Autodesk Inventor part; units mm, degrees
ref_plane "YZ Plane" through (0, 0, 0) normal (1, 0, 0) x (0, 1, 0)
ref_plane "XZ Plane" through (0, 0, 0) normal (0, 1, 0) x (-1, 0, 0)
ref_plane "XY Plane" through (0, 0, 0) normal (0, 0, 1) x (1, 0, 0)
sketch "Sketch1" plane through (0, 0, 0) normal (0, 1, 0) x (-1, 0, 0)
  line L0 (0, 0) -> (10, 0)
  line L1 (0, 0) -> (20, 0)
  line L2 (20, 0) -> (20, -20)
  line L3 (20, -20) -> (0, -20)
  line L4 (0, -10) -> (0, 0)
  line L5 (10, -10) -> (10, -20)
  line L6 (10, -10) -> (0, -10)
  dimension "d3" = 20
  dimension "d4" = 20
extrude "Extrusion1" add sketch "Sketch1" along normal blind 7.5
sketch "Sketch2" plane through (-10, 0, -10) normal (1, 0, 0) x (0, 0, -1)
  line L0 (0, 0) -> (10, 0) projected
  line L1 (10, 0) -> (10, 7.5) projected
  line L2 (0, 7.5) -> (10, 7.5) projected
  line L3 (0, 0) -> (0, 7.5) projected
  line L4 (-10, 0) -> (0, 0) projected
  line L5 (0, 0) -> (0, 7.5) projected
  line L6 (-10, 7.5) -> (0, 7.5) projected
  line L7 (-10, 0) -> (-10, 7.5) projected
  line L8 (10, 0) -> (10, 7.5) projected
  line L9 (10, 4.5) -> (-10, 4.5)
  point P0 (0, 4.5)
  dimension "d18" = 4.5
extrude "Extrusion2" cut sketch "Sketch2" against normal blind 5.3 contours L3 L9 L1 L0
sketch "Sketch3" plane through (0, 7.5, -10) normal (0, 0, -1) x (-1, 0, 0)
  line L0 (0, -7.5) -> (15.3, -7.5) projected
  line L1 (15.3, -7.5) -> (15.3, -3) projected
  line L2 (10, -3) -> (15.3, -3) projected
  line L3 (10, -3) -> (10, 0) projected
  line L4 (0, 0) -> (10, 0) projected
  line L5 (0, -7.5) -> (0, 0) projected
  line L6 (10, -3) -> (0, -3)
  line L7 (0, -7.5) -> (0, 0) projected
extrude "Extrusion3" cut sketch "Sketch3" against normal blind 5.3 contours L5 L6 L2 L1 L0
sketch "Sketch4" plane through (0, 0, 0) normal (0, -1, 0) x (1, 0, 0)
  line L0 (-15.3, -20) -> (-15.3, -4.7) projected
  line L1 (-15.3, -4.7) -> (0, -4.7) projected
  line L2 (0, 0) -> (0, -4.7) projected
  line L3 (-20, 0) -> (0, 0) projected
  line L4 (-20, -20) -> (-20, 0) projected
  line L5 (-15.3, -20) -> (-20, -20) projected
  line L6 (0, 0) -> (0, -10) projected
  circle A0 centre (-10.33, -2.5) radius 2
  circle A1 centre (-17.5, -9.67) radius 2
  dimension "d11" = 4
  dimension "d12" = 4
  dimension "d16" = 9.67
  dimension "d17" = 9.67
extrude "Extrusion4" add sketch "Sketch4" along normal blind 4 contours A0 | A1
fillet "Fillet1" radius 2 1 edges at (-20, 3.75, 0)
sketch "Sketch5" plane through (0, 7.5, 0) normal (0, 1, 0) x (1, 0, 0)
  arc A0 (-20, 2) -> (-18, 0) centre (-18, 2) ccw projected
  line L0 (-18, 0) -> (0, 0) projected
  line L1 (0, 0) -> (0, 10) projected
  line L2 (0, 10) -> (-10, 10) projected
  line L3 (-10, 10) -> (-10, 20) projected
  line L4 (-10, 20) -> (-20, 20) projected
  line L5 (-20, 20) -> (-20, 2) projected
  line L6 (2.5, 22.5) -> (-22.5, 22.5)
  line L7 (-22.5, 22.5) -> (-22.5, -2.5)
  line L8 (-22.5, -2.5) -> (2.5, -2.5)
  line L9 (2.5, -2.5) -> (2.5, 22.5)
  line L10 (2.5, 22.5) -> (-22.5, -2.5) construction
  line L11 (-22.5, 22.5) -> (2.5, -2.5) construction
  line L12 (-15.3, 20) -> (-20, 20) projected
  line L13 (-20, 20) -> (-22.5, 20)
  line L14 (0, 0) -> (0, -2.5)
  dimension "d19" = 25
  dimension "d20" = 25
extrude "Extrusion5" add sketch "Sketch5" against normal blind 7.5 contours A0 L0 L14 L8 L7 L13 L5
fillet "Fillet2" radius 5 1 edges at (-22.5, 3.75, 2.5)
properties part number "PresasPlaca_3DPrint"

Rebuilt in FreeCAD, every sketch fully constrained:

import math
import FreeCAD as App
import Part
import Sketcher

V = App.Vector


def edges_at(feature, points):
    """Names of the edges that pass closest to the given points."""
    edges = feature.Shape.Edges
    near = lambda p: min(range(len(edges)), key=lambda i: edges[i].distToShape(Part.Vertex(*p))[0])
    return sorted({f"Edge{near(p) + 1}" for p in points})

doc = App.newDocument("Part")
params = doc.addObject("Spreadsheet::Sheet", "Params")
for row, (alias, value) in enumerate([
    ("sketch1_width", "20 mm"),
    ("pad1_length", "7.5 mm"),
    ("sketch2_width", "4.5 mm"),
    ("sketch2_height", "10 mm"),
    ("pocket1_length", "5.3 mm"),
    ("sketch3_width", "15.3 mm"),
    ("sketch3_height", "4.5 mm"),
    ("pocket2_length", "5.3 mm"),
    ("sketch4_diameter", "4 mm"),
    ("pad2_length", "4 mm"),
    ("fillet_radius", "2 mm"),
    ("sketch5_radius", "2 mm"),
    ("sketch5_width", "18 mm"),
    ("sketch5_width2", "2.5 mm"),
    ("pad3_length", "7.5 mm"),
    ("fillet2_radius", "5 mm"),
], start=1):
    params.set(f"A{row}", alias)
    params.set(f"B{row}", "=" + value)
    params.setAlias(f"B{row}", alias)

body = doc.addObject("PartDesign::Body", "Body")

sketch1 = body.newObject("Sketcher::SketchObject", "Sketch")
sketch1.AttachmentSupport = (doc.getObject("XZ_Plane"), [""])
sketch1.MapMode = "FlatFace"
sketch1.addGeometry([
    Part.LineSegment(V(-20, 0, 0), V(0, 0, 0)),
    Part.LineSegment(V(0, 0, 0), V(0, -10, 0)),
    Part.LineSegment(V(0, -10, 0), V(-10, -10, 0)),
    Part.LineSegment(V(-10, -10, 0), V(-10, -20, 0)),
    Part.LineSegment(V(-10, -20, 0), V(-20, -20, 0)),
    Part.LineSegment(V(-20, -20, 0), V(-20, 0, 0)),
], False)
sketch1.addConstraint([
    Sketcher.Constraint("Coincident", 0, 2, 1, 1),
    Sketcher.Constraint("Coincident", 1, 2, 2, 1),
    Sketcher.Constraint("Coincident", 2, 2, 3, 1),
    Sketcher.Constraint("Coincident", 3, 2, 4, 1),
    Sketcher.Constraint("Coincident", 4, 2, 5, 1),
    Sketcher.Constraint("Coincident", 5, 2, 0, 1),
    Sketcher.Constraint("Horizontal", 0),
    Sketcher.Constraint("Vertical", 1),
    Sketcher.Constraint("Horizontal", 2),
    Sketcher.Constraint("Vertical", 3),
    Sketcher.Constraint("Horizontal", 4),
    Sketcher.Constraint("Vertical", 5),
    Sketcher.Constraint("Coincident", 0, 2, -1, 1),
    Sketcher.Constraint("Equal", 2, 4),
    Sketcher.Constraint("Equal", 4, 1),
    Sketcher.Constraint("Equal", 1, 3),
    Sketcher.Constraint("DistanceX", 0, 1, 0, 2, 20.0),
])
sketch1.setExpression("Constraints[16]", "Params.sketch1_width")
pad1 = body.newObject("PartDesign::Pad", "Pad")
pad1.Profile = sketch1
pad1.setExpression("Length", "Params.pad1_length")
pad1.Reversed = True

sketch2 = body.newObject("Sketcher::SketchObject", "Sketch001")
sketch2.AttachmentSupport = (doc.getObject("YZ_Plane"), [""])
sketch2.MapMode = "FlatFace"
sketch2.AttachmentOffset = App.Placement(V(0, 0, -10), App.Rotation())
sketch2.addGeometry([
    Part.LineSegment(V(4.5, -10, 0), V(0, -10, 0)),
    Part.LineSegment(V(0, -10, 0), V(0, -20, 0)),
    Part.LineSegment(V(0, -20, 0), V(4.5, -20, 0)),
    Part.LineSegment(V(4.5, -20, 0), V(4.5, -10, 0)),
], False)
sketch2.addConstraint([
    Sketcher.Constraint("Coincident", 0, 2, 1, 1),
    Sketcher.Constraint("Coincident", 1, 2, 2, 1),
    Sketcher.Constraint("Coincident", 2, 2, 3, 1),
    Sketcher.Constraint("Coincident", 3, 2, 0, 1),
    Sketcher.Constraint("Horizontal", 0),
    Sketcher.Constraint("Vertical", 1),
    Sketcher.Constraint("Horizontal", 2),
    Sketcher.Constraint("Vertical", 3),
    Sketcher.Constraint("PointOnObject", 0, 2, -2),
    Sketcher.Constraint("DistanceX", 0, 2, 0, 1, 4.5),
    Sketcher.Constraint("DistanceY", 1, 2, 1, 1, 10.0),
    Sketcher.Constraint("DistanceY", 0, 2, -1, 1, 10.0),
])
sketch2.setExpression("Constraints[9]", "Params.sketch2_width")
sketch2.setExpression("Constraints[10]", "Params.sketch2_height")
pocket1 = body.newObject("PartDesign::Pocket", "Pocket")
pocket1.Profile = sketch2
pocket1.setExpression("Length", "Params.pocket1_length")

sketch3 = body.newObject("Sketcher::SketchObject", "Sketch002")
sketch3.AttachmentSupport = (doc.getObject("XY_Plane"), [""])
sketch3.MapMode = "FlatFace"
sketch3.AttachmentOffset = App.Placement(V(0, 0, -10), App.Rotation())
sketch3.addGeometry([
    Part.LineSegment(V(0, 4.5, 0), V(0, 0, 0)),
    Part.LineSegment(V(0, 0, 0), V(-15.3, 0, 0)),
    Part.LineSegment(V(-15.3, 0, 0), V(-15.3, 4.5, 0)),
    Part.LineSegment(V(-15.3, 4.5, 0), V(0, 4.5, 0)),
], False)
sketch3.addConstraint([
    Sketcher.Constraint("Coincident", 0, 2, 1, 1),
    Sketcher.Constraint("Coincident", 1, 2, 2, 1),
    Sketcher.Constraint("Coincident", 2, 2, 3, 1),
    Sketcher.Constraint("Coincident", 3, 2, 0, 1),
    Sketcher.Constraint("Vertical", 0),
    Sketcher.Constraint("Horizontal", 1),
    Sketcher.Constraint("Vertical", 2),
    Sketcher.Constraint("Horizontal", 3),
    Sketcher.Constraint("Coincident", 0, 2, -1, 1),
    Sketcher.Constraint("DistanceX", 1, 2, 1, 1, 15.3),
    Sketcher.Constraint("DistanceY", 0, 2, 0, 1, 4.5),
])
sketch3.setExpression("Constraints[9]", "Params.sketch3_width")
sketch3.setExpression("Constraints[10]", "Params.sketch3_height")
pocket2 = body.newObject("PartDesign::Pocket", "Pocket001")
pocket2.Profile = sketch3
pocket2.setExpression("Length", "Params.pocket2_length")
pocket2.Reversed = True

sketch4 = body.newObject("Sketcher::SketchObject", "Sketch003")
sketch4.AttachmentSupport = (doc.getObject("XZ_Plane"), [""])
sketch4.MapMode = "FlatFace"
sketch4.addGeometry([
    Part.Circle(V(-10.3, -2.5, 0), V(0, 0, 1), 2),
    Part.Circle(V(-17.5, -9.7, 0), V(0, 0, 1), 2),
], False)
sketch4.addConstraint([
    Sketcher.Constraint("Equal", 0, 1),
    Sketcher.Constraint("Diameter", 0, 4.0),
    Sketcher.Constraint("DistanceY", 1, 3, -1, 1, 9.67),
    Sketcher.Constraint("DistanceY", 0, 3, -1, 1, 2.5),
    Sketcher.Constraint("DistanceX", 1, 3, -1, 1, 17.5),
    Sketcher.Constraint("DistanceX", 0, 3, -1, 1, 10.33),
])
sketch4.setExpression("Constraints[1]", "Params.sketch4_diameter")
pad2 = body.newObject("PartDesign::Pad", "Pad001")
pad2.Profile = sketch4
pad2.setExpression("Length", "Params.pad2_length")
doc.recompute()

fillet = body.newObject("PartDesign::Fillet", "Fillet")
fillet.Base = (pad2, edges_at(pad2, [(-20, 3.75, 0)]))
fillet.setExpression("Radius", "Params.fillet_radius")

sketch5 = body.newObject("Sketcher::SketchObject", "Sketch004")
sketch5.AttachmentSupport = (doc.getObject("XZ_Plane"), [""])
sketch5.MapMode = "FlatFace"
sketch5.AttachmentOffset = App.Placement(V(0, 0, -7.5), App.Rotation())
sketch5.addGeometry([
    Part.ArcOfCircle(Part.Circle(V(-18, -2, 0), V(0, 0, 1), 2), math.radians(90), math.radians(180)),
    Part.LineSegment(V(-20, -2, 0), V(-20, -20, 0)),
    Part.LineSegment(V(-20, -20, 0), V(-22.5, -20, 0)),
    Part.LineSegment(V(-22.5, -20, 0), V(-22.5, 2.5, 0)),
    Part.LineSegment(V(-22.5, 2.5, 0), V(0, 2.5, 0)),
    Part.LineSegment(V(0, 2.5, 0), V(0, 0, 0)),
    Part.LineSegment(V(0, 0, 0), V(-18, 0, 0)),
], False)
sketch5.addConstraint([
    Sketcher.Constraint("Tangent", 0, 2, 1, 1),
    Sketcher.Constraint("Coincident", 1, 2, 2, 1),
    Sketcher.Constraint("Coincident", 2, 2, 3, 1),
    Sketcher.Constraint("Coincident", 3, 2, 4, 1),
    Sketcher.Constraint("Coincident", 4, 2, 5, 1),
    Sketcher.Constraint("Coincident", 5, 2, 6, 1),
    Sketcher.Constraint("Tangent", 6, 2, 0, 1),
    Sketcher.Constraint("Vertical", 1),
    Sketcher.Constraint("Horizontal", 2),
    Sketcher.Constraint("Vertical", 3),
    Sketcher.Constraint("Horizontal", 4),
    Sketcher.Constraint("Vertical", 5),
    Sketcher.Constraint("Horizontal", 6),
    Sketcher.Constraint("Coincident", 5, 2, -1, 1),
    Sketcher.Constraint("Equal", 6, 1),
    Sketcher.Constraint("Equal", 4, 3),
    Sketcher.Constraint("Radius", 0, 2.0),
    Sketcher.Constraint("DistanceX", 6, 2, 6, 1, 18.0),
    Sketcher.Constraint("DistanceX", 2, 2, 2, 1, 2.5),
])
sketch5.setExpression("Constraints[16]", "Params.sketch5_radius")
sketch5.setExpression("Constraints[17]", "Params.sketch5_width")
sketch5.setExpression("Constraints[18]", "Params.sketch5_width2")
pad3 = body.newObject("PartDesign::Pad", "Pad002")
pad3.Profile = sketch5
pad3.setExpression("Length", "Params.pad3_length")
doc.recompute()

fillet2 = body.newObject("PartDesign::Fillet", "Fillet001")
fillet2.Base = (pad3, edges_at(pad3, [(-22.5, 3.75, 2.5)]))
fillet2.setExpression("Radius", "Params.fillet2_radius")

doc.recompute()
